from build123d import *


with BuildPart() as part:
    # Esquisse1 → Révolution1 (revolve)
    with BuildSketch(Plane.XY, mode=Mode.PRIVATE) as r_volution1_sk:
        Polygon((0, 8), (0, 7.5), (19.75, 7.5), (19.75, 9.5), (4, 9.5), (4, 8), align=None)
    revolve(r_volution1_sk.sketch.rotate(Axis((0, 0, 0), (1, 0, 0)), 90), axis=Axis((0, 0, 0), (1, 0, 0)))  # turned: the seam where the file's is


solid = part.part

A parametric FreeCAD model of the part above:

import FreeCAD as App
import Part
import Sketcher

V = App.Vector


def add_polygon(sketch, points):
    """Adds a closed chain of lines whose ends are joined by coincident constraints."""
    first, n = sketch.GeometryCount, len(points)
    for a, b in zip(points, points[1:] + points[:1]):
        sketch.addGeometry(Part.LineSegment(App.Vector(*a, 0), App.Vector(*b, 0)), False)
    for i in range(n):
        sketch.addConstraint(Sketcher.Constraint("Coincident", first + i, 2, first + (i + 1) % n, 1))

doc = App.newDocument("Part")
body = doc.addObject("PartDesign::Body", "Body")

sketch1 = doc.addObject("Sketcher::SketchObject", "Sketch")
body.addObject(sketch1)
sketch1.AttachmentSupport = (doc.XY_Plane, [""])
sketch1.MapMode = "FlatFace"
add_polygon(sketch1, [(0, 8), (0, 7.5), (19.8, 7.5), (19.8, 9.5), (4, 9.5), (4, 8)])
sketch1.addConstraint([
    Sketcher.Constraint("Vertical", 0),
    Sketcher.Constraint("Horizontal", 1),
    Sketcher.Constraint("Vertical", 2),
    Sketcher.Constraint("Horizontal", 3),
    Sketcher.Constraint("Vertical", 4),
    Sketcher.Constraint("Horizontal", 5),
    Sketcher.Constraint("PointOnObject", 0, 2, -2),
    Sketcher.Constraint("DistanceX", 5, 2, 5, 1, 4.0),
    Sketcher.Constraint("DistanceY", 2, 1, 2, 2, 2.0),
    Sketcher.Constraint("DistanceY", 0, 2, 0, 1, 0.5),
    Sketcher.Constraint("DistanceY", -1, 1, 4, 2, 8.0),
    Sketcher.Constraint("DistanceX", 1, 1, 1, 2, 19.75),
])
revolution = doc.addObject("PartDesign::Revolution", "Revolution")
body.addObject(revolution)
revolution.Profile = sketch1
revolution.ReferenceAxis = (sketch1, ["H_Axis"])
revolution.Angle = 360

doc.recompute()
